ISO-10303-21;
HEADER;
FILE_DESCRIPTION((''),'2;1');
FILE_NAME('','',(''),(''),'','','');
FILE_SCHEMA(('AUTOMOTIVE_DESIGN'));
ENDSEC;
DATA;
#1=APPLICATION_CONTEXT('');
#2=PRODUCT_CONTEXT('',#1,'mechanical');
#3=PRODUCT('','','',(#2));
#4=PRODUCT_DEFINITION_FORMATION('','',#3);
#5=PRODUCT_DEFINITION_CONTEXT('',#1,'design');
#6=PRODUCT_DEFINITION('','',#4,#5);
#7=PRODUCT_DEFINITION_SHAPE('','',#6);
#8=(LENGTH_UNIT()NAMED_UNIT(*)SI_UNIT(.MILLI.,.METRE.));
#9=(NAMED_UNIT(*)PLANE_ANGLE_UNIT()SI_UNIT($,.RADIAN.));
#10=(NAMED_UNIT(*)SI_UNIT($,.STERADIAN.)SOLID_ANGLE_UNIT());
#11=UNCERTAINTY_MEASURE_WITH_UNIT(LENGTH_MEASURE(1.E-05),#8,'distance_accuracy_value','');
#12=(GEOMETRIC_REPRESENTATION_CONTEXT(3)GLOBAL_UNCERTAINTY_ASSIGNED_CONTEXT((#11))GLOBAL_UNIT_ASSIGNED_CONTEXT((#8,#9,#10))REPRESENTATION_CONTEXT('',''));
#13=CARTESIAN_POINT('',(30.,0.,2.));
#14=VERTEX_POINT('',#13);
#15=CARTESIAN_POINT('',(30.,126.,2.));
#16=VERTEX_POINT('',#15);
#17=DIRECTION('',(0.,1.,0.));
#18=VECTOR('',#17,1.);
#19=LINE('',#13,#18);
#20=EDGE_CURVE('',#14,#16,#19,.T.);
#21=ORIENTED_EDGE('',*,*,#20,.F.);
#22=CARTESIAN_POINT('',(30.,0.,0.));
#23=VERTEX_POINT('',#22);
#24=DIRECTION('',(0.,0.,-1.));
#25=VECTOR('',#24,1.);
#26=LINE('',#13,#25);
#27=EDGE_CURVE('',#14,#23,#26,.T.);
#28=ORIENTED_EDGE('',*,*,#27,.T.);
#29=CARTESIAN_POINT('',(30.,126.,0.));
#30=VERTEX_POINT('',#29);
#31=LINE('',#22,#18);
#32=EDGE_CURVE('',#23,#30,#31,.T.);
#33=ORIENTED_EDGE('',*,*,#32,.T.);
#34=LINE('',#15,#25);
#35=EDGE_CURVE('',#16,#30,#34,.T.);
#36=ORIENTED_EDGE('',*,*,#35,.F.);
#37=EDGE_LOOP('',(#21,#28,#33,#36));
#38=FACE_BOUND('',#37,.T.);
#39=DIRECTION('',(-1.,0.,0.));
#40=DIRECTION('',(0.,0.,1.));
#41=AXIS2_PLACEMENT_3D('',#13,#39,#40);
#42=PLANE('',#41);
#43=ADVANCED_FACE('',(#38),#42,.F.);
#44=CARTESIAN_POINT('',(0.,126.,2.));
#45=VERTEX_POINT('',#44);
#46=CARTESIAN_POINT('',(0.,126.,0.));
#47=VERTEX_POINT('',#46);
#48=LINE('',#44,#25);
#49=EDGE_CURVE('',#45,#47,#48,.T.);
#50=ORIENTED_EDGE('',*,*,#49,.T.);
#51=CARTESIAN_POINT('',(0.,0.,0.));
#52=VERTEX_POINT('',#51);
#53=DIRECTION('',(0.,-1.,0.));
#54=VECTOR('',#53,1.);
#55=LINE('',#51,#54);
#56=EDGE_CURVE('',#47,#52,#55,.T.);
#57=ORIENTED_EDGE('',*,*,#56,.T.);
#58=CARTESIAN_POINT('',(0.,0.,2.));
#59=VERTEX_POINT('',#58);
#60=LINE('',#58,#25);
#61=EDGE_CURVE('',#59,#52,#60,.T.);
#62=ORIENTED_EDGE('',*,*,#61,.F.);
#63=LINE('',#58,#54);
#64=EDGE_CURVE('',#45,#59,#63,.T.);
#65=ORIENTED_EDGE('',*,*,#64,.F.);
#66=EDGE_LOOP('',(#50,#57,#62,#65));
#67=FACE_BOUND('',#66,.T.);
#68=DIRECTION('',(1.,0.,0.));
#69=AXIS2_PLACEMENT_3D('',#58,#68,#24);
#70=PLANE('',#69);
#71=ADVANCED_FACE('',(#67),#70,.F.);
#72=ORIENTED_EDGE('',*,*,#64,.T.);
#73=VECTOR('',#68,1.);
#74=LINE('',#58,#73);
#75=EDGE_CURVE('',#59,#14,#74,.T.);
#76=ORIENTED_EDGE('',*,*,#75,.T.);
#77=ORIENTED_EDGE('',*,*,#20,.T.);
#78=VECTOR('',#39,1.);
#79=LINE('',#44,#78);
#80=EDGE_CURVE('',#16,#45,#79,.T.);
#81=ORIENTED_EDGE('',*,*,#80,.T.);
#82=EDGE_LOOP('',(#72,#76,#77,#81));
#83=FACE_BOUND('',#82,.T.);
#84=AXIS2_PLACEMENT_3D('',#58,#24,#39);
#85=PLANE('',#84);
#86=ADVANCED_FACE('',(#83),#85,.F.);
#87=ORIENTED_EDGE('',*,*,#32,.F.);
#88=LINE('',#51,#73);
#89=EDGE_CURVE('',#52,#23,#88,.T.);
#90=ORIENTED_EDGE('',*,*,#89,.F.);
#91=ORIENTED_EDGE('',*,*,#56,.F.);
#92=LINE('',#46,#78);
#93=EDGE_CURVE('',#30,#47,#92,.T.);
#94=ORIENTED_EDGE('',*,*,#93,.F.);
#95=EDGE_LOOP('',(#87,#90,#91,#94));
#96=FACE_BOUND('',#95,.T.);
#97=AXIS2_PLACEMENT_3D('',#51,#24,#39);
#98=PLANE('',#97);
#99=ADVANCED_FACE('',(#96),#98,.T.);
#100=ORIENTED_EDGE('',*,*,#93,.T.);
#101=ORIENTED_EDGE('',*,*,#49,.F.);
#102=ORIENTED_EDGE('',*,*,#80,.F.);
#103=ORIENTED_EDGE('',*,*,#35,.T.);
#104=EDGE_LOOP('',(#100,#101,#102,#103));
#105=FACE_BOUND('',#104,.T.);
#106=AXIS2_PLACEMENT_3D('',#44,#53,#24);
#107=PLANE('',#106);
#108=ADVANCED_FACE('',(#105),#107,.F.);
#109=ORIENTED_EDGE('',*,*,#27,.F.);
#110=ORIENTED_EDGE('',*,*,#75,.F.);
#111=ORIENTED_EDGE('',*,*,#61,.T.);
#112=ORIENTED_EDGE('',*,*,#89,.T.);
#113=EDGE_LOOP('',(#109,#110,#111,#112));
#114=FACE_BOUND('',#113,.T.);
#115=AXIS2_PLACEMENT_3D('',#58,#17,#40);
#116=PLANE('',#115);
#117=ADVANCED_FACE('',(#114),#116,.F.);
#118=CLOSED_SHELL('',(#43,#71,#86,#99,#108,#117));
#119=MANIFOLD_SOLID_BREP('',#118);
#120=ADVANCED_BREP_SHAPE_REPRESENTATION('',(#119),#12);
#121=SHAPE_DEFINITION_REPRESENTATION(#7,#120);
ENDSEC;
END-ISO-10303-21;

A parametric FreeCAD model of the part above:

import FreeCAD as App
import Part
import Sketcher
Q = App.Units.Quantity


def add_polygon(sketch, points):
    """Adds a closed chain of lines whose ends are joined by coincident constraints."""
    first, n = sketch.GeometryCount, len(points)
    for a, b in zip(points, points[1:] + points[:1]):
        sketch.addGeometry(Part.LineSegment(App.Vector(*a, 0), App.Vector(*b, 0)), False)
    for i in range(n):
        sketch.addConstraint(Sketcher.Constraint("Coincident", first + i, 2, first + (i + 1) % n, 1))

doc = App.newDocument("Part")
body = doc.addObject("PartDesign::Body", "Body")

# Sketch on XY plane
sketch1 = body.newObject("Sketcher::SketchObject", "Sketch")
sketch1.AttachmentSupport = (doc.getObject("XY_Plane"), [""])
sketch1.MapMode = "FlatFace"
add_polygon(sketch1, [(0, 126), (0, 0), (30, 0), (30, 126)])  # lines 0-3
sketch1.addConstraint([
    Sketcher.Constraint("Vertical", 0),
    Sketcher.Constraint("Horizontal", 1),
    Sketcher.Constraint("Vertical", 2),
    Sketcher.Constraint("Horizontal", 3),
    Sketcher.Constraint("Coincident", 0, 2, -1, 1),
    Sketcher.Constraint("DistanceX", 1, 1, 1, 2, Q("30 mm")),
    Sketcher.Constraint("DistanceY", 0, 2, 0, 1, Q("126 mm")),
])
pad1 = body.newObject("PartDesign::Pad", "Pad")
pad1.Profile = sketch1
pad1.Length = 2

doc.recompute()
